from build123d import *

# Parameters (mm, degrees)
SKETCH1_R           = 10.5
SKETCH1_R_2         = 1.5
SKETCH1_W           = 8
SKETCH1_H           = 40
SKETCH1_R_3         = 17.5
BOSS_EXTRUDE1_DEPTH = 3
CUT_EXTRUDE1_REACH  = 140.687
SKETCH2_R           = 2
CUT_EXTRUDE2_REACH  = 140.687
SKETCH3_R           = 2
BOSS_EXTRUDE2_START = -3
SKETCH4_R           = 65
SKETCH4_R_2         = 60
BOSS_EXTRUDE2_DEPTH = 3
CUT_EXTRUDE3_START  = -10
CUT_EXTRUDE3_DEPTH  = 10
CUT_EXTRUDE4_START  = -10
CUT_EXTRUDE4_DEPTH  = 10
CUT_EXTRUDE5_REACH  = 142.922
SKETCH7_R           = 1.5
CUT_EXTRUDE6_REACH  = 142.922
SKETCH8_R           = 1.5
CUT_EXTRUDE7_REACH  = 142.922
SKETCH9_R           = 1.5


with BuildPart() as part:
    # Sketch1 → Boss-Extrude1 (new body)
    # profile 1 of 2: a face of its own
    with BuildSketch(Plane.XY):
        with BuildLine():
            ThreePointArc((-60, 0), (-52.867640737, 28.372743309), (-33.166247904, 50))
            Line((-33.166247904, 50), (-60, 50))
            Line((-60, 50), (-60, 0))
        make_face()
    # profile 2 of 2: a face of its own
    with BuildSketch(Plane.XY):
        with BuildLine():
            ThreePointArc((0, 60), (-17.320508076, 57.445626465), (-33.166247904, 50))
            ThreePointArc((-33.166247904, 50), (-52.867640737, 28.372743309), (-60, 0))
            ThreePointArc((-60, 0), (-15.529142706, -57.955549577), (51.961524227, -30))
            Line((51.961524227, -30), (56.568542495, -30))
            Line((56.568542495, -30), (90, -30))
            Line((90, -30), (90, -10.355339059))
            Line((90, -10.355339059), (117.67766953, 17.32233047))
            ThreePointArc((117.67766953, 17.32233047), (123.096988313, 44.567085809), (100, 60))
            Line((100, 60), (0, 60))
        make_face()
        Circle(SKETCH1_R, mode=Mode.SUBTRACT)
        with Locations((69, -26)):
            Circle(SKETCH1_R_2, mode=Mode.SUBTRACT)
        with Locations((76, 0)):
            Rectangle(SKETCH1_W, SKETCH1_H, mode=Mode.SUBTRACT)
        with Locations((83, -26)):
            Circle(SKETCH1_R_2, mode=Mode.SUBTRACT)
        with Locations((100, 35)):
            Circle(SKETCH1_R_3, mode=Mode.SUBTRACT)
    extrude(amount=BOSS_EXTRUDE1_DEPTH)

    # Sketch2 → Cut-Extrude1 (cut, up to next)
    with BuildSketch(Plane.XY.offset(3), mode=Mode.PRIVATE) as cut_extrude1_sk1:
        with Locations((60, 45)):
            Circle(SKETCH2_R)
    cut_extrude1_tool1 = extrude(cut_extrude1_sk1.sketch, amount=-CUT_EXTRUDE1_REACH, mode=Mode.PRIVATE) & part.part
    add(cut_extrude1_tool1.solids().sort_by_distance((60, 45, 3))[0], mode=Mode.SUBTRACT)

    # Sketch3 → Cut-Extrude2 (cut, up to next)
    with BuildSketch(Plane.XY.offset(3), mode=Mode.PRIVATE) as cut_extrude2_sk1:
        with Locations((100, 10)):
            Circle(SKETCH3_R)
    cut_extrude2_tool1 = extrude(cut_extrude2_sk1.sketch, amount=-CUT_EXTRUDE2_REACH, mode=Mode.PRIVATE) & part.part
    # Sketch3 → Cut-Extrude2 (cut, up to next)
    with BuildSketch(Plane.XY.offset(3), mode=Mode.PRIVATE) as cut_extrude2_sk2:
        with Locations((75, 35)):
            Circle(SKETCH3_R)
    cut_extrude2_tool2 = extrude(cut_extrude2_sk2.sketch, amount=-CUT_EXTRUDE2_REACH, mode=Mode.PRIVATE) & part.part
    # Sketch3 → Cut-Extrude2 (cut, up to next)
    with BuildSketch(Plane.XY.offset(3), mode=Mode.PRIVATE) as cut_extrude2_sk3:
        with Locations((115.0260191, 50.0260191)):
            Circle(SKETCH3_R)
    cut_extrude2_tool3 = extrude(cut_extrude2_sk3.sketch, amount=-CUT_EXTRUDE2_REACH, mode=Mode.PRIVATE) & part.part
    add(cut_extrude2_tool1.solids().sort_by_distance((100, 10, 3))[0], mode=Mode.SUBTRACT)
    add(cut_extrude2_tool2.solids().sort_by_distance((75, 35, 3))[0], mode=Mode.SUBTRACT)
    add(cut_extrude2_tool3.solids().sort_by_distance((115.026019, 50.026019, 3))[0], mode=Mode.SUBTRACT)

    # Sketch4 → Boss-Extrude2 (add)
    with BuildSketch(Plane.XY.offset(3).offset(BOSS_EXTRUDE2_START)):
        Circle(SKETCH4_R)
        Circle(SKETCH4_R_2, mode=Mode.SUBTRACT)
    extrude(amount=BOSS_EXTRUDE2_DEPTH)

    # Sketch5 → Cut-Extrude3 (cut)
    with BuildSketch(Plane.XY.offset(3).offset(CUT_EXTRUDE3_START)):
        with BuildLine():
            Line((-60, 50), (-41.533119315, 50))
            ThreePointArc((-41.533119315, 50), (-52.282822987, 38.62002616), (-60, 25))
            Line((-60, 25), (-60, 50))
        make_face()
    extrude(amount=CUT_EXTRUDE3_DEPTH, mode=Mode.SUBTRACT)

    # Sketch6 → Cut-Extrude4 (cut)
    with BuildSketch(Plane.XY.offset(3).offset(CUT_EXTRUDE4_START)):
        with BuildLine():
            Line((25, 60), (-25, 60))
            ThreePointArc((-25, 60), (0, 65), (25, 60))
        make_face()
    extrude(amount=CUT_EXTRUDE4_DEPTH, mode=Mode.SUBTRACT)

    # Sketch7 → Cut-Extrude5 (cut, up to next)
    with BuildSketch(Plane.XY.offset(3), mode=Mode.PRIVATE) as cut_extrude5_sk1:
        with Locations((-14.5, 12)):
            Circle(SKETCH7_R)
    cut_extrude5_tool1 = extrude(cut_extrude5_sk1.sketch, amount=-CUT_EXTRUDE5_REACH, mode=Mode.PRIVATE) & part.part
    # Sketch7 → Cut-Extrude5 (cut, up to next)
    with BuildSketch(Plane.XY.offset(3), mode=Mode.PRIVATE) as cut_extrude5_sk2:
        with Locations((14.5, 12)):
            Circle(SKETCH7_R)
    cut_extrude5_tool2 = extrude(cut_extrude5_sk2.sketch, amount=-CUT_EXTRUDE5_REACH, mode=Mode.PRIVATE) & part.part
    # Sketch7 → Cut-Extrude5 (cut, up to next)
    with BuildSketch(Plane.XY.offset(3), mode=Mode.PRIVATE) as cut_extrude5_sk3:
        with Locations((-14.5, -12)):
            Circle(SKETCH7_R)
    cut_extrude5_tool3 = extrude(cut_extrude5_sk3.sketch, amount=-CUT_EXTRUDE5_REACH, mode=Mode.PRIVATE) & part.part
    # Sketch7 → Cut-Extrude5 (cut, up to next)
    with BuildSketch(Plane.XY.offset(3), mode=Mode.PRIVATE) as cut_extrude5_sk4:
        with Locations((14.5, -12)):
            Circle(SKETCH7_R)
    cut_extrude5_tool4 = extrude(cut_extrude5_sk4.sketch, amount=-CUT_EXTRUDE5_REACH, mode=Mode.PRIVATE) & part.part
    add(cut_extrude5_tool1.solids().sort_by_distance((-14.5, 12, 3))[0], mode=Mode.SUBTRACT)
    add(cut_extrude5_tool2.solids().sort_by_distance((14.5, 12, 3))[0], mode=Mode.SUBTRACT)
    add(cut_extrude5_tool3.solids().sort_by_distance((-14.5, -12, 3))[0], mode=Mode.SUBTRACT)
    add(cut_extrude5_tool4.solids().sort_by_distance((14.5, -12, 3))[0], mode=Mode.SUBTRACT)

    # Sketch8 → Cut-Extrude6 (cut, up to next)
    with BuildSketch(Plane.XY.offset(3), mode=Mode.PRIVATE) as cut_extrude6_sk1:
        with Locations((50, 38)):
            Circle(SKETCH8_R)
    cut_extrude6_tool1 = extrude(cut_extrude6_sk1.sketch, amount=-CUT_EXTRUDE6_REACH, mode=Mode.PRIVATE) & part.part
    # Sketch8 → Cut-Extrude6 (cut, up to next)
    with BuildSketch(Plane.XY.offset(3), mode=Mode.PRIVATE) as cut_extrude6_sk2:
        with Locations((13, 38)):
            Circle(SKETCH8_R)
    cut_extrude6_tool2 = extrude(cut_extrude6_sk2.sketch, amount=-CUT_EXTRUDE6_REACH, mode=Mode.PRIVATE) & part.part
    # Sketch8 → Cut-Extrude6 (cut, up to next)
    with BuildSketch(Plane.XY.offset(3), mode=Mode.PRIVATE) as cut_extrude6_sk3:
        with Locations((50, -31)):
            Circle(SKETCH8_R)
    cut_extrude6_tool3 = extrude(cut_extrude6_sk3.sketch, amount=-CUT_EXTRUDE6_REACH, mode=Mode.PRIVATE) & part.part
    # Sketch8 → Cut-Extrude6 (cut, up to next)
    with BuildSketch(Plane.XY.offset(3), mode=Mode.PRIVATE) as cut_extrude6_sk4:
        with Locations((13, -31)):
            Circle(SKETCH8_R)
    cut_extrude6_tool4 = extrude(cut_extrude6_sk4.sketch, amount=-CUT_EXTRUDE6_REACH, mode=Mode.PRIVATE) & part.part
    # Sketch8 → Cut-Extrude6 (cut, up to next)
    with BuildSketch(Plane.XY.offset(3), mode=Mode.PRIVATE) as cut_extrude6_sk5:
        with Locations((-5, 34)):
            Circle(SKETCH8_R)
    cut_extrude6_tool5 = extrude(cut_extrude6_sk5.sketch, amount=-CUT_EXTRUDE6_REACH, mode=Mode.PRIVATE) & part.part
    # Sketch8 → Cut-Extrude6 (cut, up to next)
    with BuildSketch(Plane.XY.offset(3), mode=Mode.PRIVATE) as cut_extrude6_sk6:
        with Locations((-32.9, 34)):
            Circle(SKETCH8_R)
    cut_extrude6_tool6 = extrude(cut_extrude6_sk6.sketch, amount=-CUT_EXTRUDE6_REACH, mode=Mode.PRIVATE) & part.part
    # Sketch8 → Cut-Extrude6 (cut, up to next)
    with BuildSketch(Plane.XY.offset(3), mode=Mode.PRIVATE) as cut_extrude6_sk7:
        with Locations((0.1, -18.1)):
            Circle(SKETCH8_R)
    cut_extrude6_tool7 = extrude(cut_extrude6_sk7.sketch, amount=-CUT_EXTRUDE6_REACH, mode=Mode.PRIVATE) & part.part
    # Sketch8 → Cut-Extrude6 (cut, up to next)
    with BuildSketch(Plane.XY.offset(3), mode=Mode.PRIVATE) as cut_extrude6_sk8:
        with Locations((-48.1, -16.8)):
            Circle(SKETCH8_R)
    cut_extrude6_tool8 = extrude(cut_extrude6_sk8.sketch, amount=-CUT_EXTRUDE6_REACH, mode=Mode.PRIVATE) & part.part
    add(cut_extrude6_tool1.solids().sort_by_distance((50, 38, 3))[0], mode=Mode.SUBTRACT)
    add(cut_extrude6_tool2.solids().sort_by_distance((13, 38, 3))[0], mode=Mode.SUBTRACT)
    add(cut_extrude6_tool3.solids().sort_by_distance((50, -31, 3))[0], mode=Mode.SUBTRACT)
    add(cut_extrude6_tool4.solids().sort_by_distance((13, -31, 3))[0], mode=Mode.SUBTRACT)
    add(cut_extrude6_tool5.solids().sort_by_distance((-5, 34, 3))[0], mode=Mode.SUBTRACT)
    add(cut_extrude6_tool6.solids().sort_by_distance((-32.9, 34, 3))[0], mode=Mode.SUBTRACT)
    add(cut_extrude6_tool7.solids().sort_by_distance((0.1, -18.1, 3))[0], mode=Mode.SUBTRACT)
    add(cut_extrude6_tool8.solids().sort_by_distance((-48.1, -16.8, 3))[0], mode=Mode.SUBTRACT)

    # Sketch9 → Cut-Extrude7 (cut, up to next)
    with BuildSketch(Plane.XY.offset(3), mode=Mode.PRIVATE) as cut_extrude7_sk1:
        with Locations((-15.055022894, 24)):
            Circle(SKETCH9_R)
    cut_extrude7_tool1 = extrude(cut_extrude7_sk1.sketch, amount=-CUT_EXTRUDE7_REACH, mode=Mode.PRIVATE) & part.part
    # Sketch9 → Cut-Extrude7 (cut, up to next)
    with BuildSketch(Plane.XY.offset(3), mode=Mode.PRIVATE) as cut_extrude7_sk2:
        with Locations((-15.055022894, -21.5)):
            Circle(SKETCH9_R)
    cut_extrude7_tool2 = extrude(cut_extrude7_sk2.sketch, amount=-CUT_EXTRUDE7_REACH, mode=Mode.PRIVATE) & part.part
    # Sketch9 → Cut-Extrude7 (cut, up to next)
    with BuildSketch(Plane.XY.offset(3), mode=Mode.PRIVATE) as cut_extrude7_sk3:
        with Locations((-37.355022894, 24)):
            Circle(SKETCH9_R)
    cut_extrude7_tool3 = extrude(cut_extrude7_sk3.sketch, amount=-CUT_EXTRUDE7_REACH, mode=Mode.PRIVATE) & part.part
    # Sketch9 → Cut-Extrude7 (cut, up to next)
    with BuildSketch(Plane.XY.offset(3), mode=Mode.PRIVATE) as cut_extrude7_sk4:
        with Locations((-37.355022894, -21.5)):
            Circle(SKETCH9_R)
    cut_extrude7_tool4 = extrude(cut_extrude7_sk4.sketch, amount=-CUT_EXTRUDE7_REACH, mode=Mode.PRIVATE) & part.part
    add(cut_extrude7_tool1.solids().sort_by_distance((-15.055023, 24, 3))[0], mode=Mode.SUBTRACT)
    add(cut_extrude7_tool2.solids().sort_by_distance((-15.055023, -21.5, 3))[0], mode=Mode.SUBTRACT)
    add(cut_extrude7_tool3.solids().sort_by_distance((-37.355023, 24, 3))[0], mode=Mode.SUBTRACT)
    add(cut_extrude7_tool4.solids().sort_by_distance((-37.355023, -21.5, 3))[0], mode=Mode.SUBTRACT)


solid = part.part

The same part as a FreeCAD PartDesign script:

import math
import FreeCAD as App
import Part
import Sketcher
from FreeCAD import Vector
Q = App.Units.Quantity

doc = App.newDocument("Part")
params = doc.addObject("Spreadsheet::Sheet", "Params")
for row, (alias, value) in enumerate([
    ("sketch1_diameter", "35 mm"),
    ("sketch1_diameter2", "21 mm"),
    ("sketch1_diameter3", "3 mm"),
    ("sketch1_radius", "60 mm"),
    ("sketch1_radius2", "25 mm"),
    ("pad1_length", "3 mm"),
    ("sketch2_diameter", "4 mm"),
    ("sketch3_diameter", "4 mm"),
    ("sketch4_diameter", "4 mm"),
    ("sketch5_diameter", "4 mm"),
    ("sketch6_diameter", "130 mm"),
    ("sketch6_diameter2", "120 mm"),
    ("pad2_length", "3 mm"),
    ("sketch7_radius", "65 mm"),
    ("sketch7_height", "25 mm"),
    ("pocket5_length", "10 mm"),
    ("sketch8_radius", "65 mm"),
    ("sketch8_width", "50 mm"),
    ("pocket6_length", "10 mm"),
    ("sketch9_diameter", "3 mm"),
    ("sketch10_diameter", "3 mm"),
    ("sketch11_diameter", "3 mm"),
    ("sketch12_diameter", "3 mm"),
    ("sketch13_diameter", "3 mm"),
    ("sketch14_diameter", "3 mm"),
    ("sketch15_diameter", "3 mm"),
    ("sketch16_diameter", "3 mm"),
    ("sketch17_diameter", "3 mm"),
    ("sketch18_diameter", "3 mm"),
    ("sketch19_diameter", "3 mm"),
    ("sketch20_diameter", "3 mm"),
    ("sketch21_diameter", "3 mm"),
    ("sketch22_diameter", "3 mm"),
    ("sketch23_diameter", "3 mm"),
    ("sketch24_diameter", "3 mm"),
], start=1):
    params.set(f"A{row}", alias)
    params.set(f"B{row}", "=" + value)
    params.setAlias(f"B{row}", alias)

body = doc.addObject("PartDesign::Body", "Body")

# Sketch on XY plane
sketch1 = doc.addObject("Sketcher::SketchObject", "Sketch")
body.addObject(sketch1)
sketch1.AttachmentSupport = (doc.XY_Plane, [""])
sketch1.MapMode = "FlatFace"
sketch1.addGeometry(Part.LineSegment(Vector(-33.166248, 50, 0), Vector(-60, 50, 0)), False)
sketch1.addGeometry(Part.LineSegment(Vector(-60, 50, 0), Vector(-60, 0, 0)), False)
sketch1.addGeometry(Part.ArcOfCircle(Part.Circle(Vector(0, 0, 0), Vector(0, 0, 1), 60), math.radians(180), math.radians(330)), False)
sketch1.addGeometry(Part.LineSegment(Vector(51.961524, -30, 0), Vector(90, -30, 0)), False)
sketch1.addGeometry(Part.LineSegment(Vector(90, -30, 0), Vector(90, -10.355339, 0)), False)
sketch1.addGeometry(Part.LineSegment(Vector(90, -10.355339, 0), Vector(117.67767, 17.32233, 0)), False)
sketch1.addGeometry(Part.ArcOfCircle(Part.Circle(Vector(100, 35, 0), Vector(0, 0, 1), 25), math.radians(-45), math.radians(90)), False)
sketch1.addGeometry(Part.LineSegment(Vector(100, 60, 0), Vector(0, 60, 0)), False)
sketch1.addGeometry(Part.ArcOfCircle(Part.Circle(Vector(0, 0, 0), Vector(0, 0, 1), 60), math.radians(90), math.radians(123.55731)), False)
sketch1.addGeometry(Part.Circle(Vector(100, 35, 0), Vector(0, 0, 1), 17.5), False)
sketch1.addGeometry(Part.Circle(Vector(0, 0, 0), Vector(0, 0, 1), 10.5), False)
sketch1.addGeometry(Part.Circle(Vector(69, -26, 0), Vector(0, 0, 1), 1.5), False)
sketch1.addGeometry(Part.Circle(Vector(83, -26, 0), Vector(0, 0, 1), 1.5), False)
sketch1.addGeometry(Part.LineSegment(Vector(80, -20, 0), Vector(72, -20, 0)), False)
sketch1.addGeometry(Part.LineSegment(Vector(72, -20, 0), Vector(72, 20, 0)), False)
sketch1.addGeometry(Part.LineSegment(Vector(72, 20, 0), Vector(80, 20, 0)), False)
sketch1.addGeometry(Part.LineSegment(Vector(80, 20, 0), Vector(80, -20, 0)), False)
sketch1.addConstraint(Sketcher.Constraint("Coincident", 0, 2, 1, 1))
sketch1.addConstraint(Sketcher.Constraint("Tangent", 1, 2, 2, 1))
sketch1.addConstraint(Sketcher.Constraint("Coincident", 2, 2, 3, 1))
sketch1.addConstraint(Sketcher.Constraint("Coincident", 3, 2, 4, 1))
sketch1.addConstraint(Sketcher.Constraint("Coincident", 4, 2, 5, 1))
sketch1.addConstraint(Sketcher.Constraint("Tangent", 5, 2, 6, 1))
sketch1.addConstraint(Sketcher.Constraint("Tangent", 6, 2, 7, 1))
sketch1.addConstraint(Sketcher.Constraint("Tangent", 7, 2, 8, 1))
sketch1.addConstraint(Sketcher.Constraint("Coincident", 8, 2, 0, 1))
sketch1.addConstraint(Sketcher.Constraint("Coincident", 13, 2, 14, 1))
sketch1.addConstraint(Sketcher.Constraint("Coincident", 14, 2, 15, 1))
sketch1.addConstraint(Sketcher.Constraint("Coincident", 15, 2, 16, 1))
sketch1.addConstraint(Sketcher.Constraint("Coincident", 16, 2, 13, 1))
sketch1.addConstraint(Sketcher.Constraint("Horizontal", 0))
sketch1.addConstraint(Sketcher.Constraint("Vertical", 1))
sketch1.addConstraint(Sketcher.Constraint("Horizontal", 3))
sketch1.addConstraint(Sketcher.Constraint("Vertical", 4))
sketch1.addConstraint(Sketcher.Constraint("Horizontal", 7))
sketch1.addConstraint(Sketcher.Constraint("Horizontal", 13))
sketch1.addConstraint(Sketcher.Constraint("Vertical", 14))
sketch1.addConstraint(Sketcher.Constraint("Horizontal", 15))
sketch1.addConstraint(Sketcher.Constraint("Vertical", 16))
sketch1.addConstraint(Sketcher.Constraint("Coincident", 2, 3, -1, 1))
sketch1.addConstraint(Sketcher.Constraint("Coincident", 8, 3, -1, 1))
sketch1.addConstraint(Sketcher.Constraint("Coincident", 10, 3, -1, 1))
sketch1.addConstraint(Sketcher.Constraint("Coincident", 9, 3, 6, 3))
sketch1.addConstraint(Sketcher.Constraint("Equal", 2, 8))
sketch1.addConstraint(Sketcher.Constraint("Equal", 11, 12))
sketch1.addConstraint(Sketcher.Constraint("Horizontal", 11, 3, 12, 3))
sketch1.addConstraint(Sketcher.Constraint("Diameter", 9, Q("35 mm")))
sketch1.addConstraint(Sketcher.Constraint("Diameter", 10, Q("21 mm")))
sketch1.addConstraint(Sketcher.Constraint("Diameter", 11, Q("3 mm")))
sketch1.addConstraint(Sketcher.Constraint("Radius", 2, Q("60 mm")))
sketch1.addConstraint(Sketcher.Constraint("Radius", 6, Q("25 mm")))
sketch1.addConstraint(Sketcher.Constraint("DistanceX", 7, 2, 7, 1, Q("100 mm")))
sketch1.addConstraint(Sketcher.Constraint("DistanceX", 13, 2, 13, 1, Q("8 mm")))
sketch1.addConstraint(Sketcher.Constraint("DistanceY", 1, 2, 1, 1, Q("50 mm")))
sketch1.addConstraint(Sketcher.Constraint("DistanceY", 14, 1, 14, 2, Q("40 mm")))
sketch1.addConstraint(Sketcher.Constraint("Angle", 5, Q("45 deg")))
sketch1.addConstraint(Sketcher.Constraint("DistanceX", -1, 1, 11, 3, Q("69 mm")))
sketch1.addConstraint(Sketcher.Constraint("DistanceY", 11, 3, -1, 1, Q("26 mm")))
sketch1.addConstraint(Sketcher.Constraint("DistanceX", -1, 1, 12, 3, Q("83 mm")))
sketch1.addConstraint(Sketcher.Constraint("DistanceY", 2, 2, -1, 1, Q("30 mm")))
sketch1.addConstraint(Sketcher.Constraint("DistanceX", -1, 1, 3, 2, Q("90 mm")))
sketch1.addConstraint(Sketcher.Constraint("DistanceX", -1, 1, 13, 2, Q("72 mm")))
sketch1.addConstraint(Sketcher.Constraint("DistanceY", 13, 2, -1, 1, Q("20 mm")))
sketch1.setExpression("Constraints[29]", "Params.sketch1_diameter")
sketch1.setExpression("Constraints[30]", "Params.sketch1_diameter2")
sketch1.setExpression("Constraints[31]", "Params.sketch1_diameter3")
sketch1.setExpression("Constraints[32]", "Params.sketch1_radius")
sketch1.setExpression("Constraints[33]", "Params.sketch1_radius2")
pad1 = doc.addObject("PartDesign::Pad", "Pad")
body.addObject(pad1)
pad1.Profile = sketch1
pad1.setExpression("Length", "Params.pad1_length")

# Sketch on XY plane
sketch2 = doc.addObject("Sketcher::SketchObject", "Sketch001")
body.addObject(sketch2)
sketch2.AttachmentSupport = (doc.XY_Plane, [""])
sketch2.MapMode = "FlatFace"
sketch2.AttachmentOffset = App.Placement(Vector(0, 0, 3), App.Rotation())
sketch2.addGeometry(Part.Circle(Vector(60, 45, 0), Vector(0, 0, 1), 2), False)
sketch2.addConstraint(Sketcher.Constraint("Diameter", 0, Q("4 mm")))
sketch2.addConstraint(Sketcher.Constraint("DistanceX", -1, 1, 0, 3, Q("60 mm")))
sketch2.addConstraint(Sketcher.Constraint("DistanceY", -1, 1, 0, 3, Q("45 mm")))
sketch2.setExpression("Constraints[0]", "Params.sketch2_diameter")
pocket1 = doc.addObject("PartDesign::Pocket", "Pocket")
body.addObject(pocket1)
pocket1.Profile = sketch2
pocket1.Type = "UpToFirst"

# Sketch on XY plane
sketch3 = doc.addObject("Sketcher::SketchObject", "Sketch002")
body.addObject(sketch3)
sketch3.AttachmentSupport = (doc.XY_Plane, [""])
sketch3.MapMode = "FlatFace"
sketch3.AttachmentOffset = App.Placement(Vector(0, 0, 3), App.Rotation())
sketch3.addGeometry(Part.Circle(Vector(100, 10, 0), Vector(0, 0, 1), 2), False)
sketch3.addConstraint(Sketcher.Constraint("Diameter", 0, Q("4 mm")))
sketch3.addConstraint(Sketcher.Constraint("DistanceX", -1, 1, 0, 3, Q("100 mm")))
sketch3.addConstraint(Sketcher.Constraint("DistanceY", -1, 1, 0, 3, Q("10 mm")))
sketch3.setExpression("Constraints[0]", "Params.sketch3_diameter")
pocket2 = doc.addObject("PartDesign::Pocket", "Pocket001")
body.addObject(pocket2)
pocket2.Profile = sketch3
pocket2.Type = "UpToFirst"

# Sketch on XY plane
sketch4 = doc.addObject("Sketcher::SketchObject", "Sketch003")
body.addObject(sketch4)
sketch4.AttachmentSupport = (doc.XY_Plane, [""])
sketch4.MapMode = "FlatFace"
sketch4.AttachmentOffset = App.Placement(Vector(0, 0, 3), App.Rotation())
sketch4.addGeometry(Part.Circle(Vector(75, 35, 0), Vector(0, 0, 1), 2), False)
sketch4.addConstraint(Sketcher.Constraint("Diameter", 0, Q("4 mm")))
sketch4.addConstraint(Sketcher.Constraint("DistanceX", -1, 1, 0, 3, Q("75 mm")))
sketch4.addConstraint(Sketcher.Constraint("DistanceY", -1, 1, 0, 3, Q("35 mm")))
sketch4.setExpression("Constraints[0]", "Params.sketch4_diameter")
pocket3 = doc.addObject("PartDesign::Pocket", "Pocket002")
body.addObject(pocket3)
pocket3.Profile = sketch4
pocket3.Type = "UpToFirst"

# Sketch on XY plane
sketch5 = doc.addObject("Sketcher::SketchObject", "Sketch004")
body.addObject(sketch5)
sketch5.AttachmentSupport = (doc.XY_Plane, [""])
sketch5.MapMode = "FlatFace"
sketch5.AttachmentOffset = App.Placement(Vector(0, 0, 3), App.Rotation())
sketch5.addGeometry(Part.Circle(Vector(115.026019, 50.026019, 0), Vector(0, 0, 1), 2), False)
sketch5.addConstraint(Sketcher.Constraint("Diameter", 0, Q("4 mm")))
sketch5.addConstraint(Sketcher.Constraint("DistanceX", -1, 1, 0, 3, Q("115.026019 mm")))
sketch5.addConstraint(Sketcher.Constraint("DistanceY", -1, 1, 0, 3, Q("50.026019 mm")))
sketch5.setExpression("Constraints[0]", "Params.sketch5_diameter")
pocket4 = doc.addObject("PartDesign::Pocket", "Pocket003")
body.addObject(pocket4)
pocket4.Profile = sketch5
pocket4.Type = "UpToFirst"

# Sketch on XY plane
sketch6 = doc.addObject("Sketcher::SketchObject", "Sketch005")
body.addObject(sketch6)
sketch6.AttachmentSupport = (doc.XY_Plane, [""])
sketch6.MapMode = "FlatFace"
sketch6.addGeometry(Part.Circle(Vector(0, 0, 0), Vector(0, 0, 1), 65), False)
sketch6.addGeometry(Part.Circle(Vector(0, 0, 0), Vector(0, 0, 1), 60), False)
sketch6.addConstraint(Sketcher.Constraint("Coincident", 0, 3, -1, 1))
sketch6.addConstraint(Sketcher.Constraint("Coincident", 1, 3, -1, 1))
sketch6.addConstraint(Sketcher.Constraint("Diameter", 0, Q("130 mm")))
sketch6.addConstraint(Sketcher.Constraint("Diameter", 1, Q("120 mm")))
sketch6.setExpression("Constraints[2]", "Params.sketch6_diameter")
sketch6.setExpression("Constraints[3]", "Params.sketch6_diameter2")
pad2 = doc.addObject("PartDesign::Pad", "Pad001")
body.addObject(pad2)
pad2.Profile = sketch6
pad2.setExpression("Length", "Params.pad2_length")

# Sketch on XY plane
sketch7 = doc.addObject("Sketcher::SketchObject", "Sketch006")
body.addObject(sketch7)
sketch7.AttachmentSupport = (doc.XY_Plane, [""])
sketch7.MapMode = "FlatFace"
sketch7.AttachmentOffset = App.Placement(Vector(0, 0, -7), App.Rotation())
sketch7.addGeometry(Part.LineSegment(Vector(-41.533119, 50, 0), Vector(-60, 50, 0)), False)
sketch7.addGeometry(Part.LineSegment(Vector(-60, 50, 0), Vector(-60, 25, 0)), False)
sketch7.addGeometry(Part.ArcOfCircle(Part.Circle(Vector(0, 0, 0), Vector(0, 0, 1), 65), math.radians(129.715137), math.radians(157.380135)), False)
sketch7.addConstraint(Sketcher.Constraint("Coincident", 0, 2, 1, 1))
sketch7.addConstraint(Sketcher.Constraint("Coincident", 1, 2, 2, 2))
sketch7.addConstraint(Sketcher.Constraint("Coincident", 2, 1, 0, 1))
sketch7.addConstraint(Sketcher.Constraint("Horizontal", 0))
sketch7.addConstraint(Sketcher.Constraint("Vertical", 1))
sketch7.addConstraint(Sketcher.Constraint("Coincident", 2, 3, -1, 1))
sketch7.addConstraint(Sketcher.Constraint("Radius", 2, Q("65 mm")))
sketch7.addConstraint(Sketcher.Constraint("DistanceY", 1, 2, 1, 1, Q("25 mm")))
sketch7.addConstraint(Sketcher.Constraint("DistanceX", 0, 2, -1, 1, Q("60 mm")))
sketch7.setExpression("Constraints[6]", "Params.sketch7_radius")
sketch7.setExpression("Constraints[7]", "Params.sketch7_height")
pocket5 = doc.addObject("PartDesign::Pocket", "Pocket004")
body.addObject(pocket5)
pocket5.Profile = sketch7
pocket5.setExpression("Length", "Params.pocket5_length")
pocket5.Reversed = True

# Sketch on XY plane
sketch8 = doc.addObject("Sketcher::SketchObject", "Sketch007")
body.addObject(sketch8)
sketch8.AttachmentSupport = (doc.XY_Plane, [""])
sketch8.MapMode = "FlatFace"
sketch8.AttachmentOffset = App.Placement(Vector(0, 0, -7), App.Rotation())
sketch8.addGeometry(Part.LineSegment(Vector(-25, 60, 0), Vector(25, 60, 0)), False)
sketch8.addGeometry(Part.ArcOfCircle(Part.Circle(Vector(0, 0, 0), Vector(0, 0, 1), 65), math.radians(67.380135), math.radians(112.619865)), False)
sketch8.addConstraint(Sketcher.Constraint("Coincident", 0, 1, 1, 2))
sketch8.addConstraint(Sketcher.Constraint("Coincident", 1, 1, 0, 2))
sketch8.addConstraint(Sketcher.Constraint("Horizontal", 0))
sketch8.addConstraint(Sketcher.Constraint("Coincident", 1, 3, -1, 1))
sketch8.addConstraint(Sketcher.Constraint("Radius", 1, Q("65 mm")))
sketch8.addConstraint(Sketcher.Constraint("DistanceX", 0, 1, 0, 2, Q("50 mm")))
sketch8.setExpression("Constraints[4]", "Params.sketch8_radius")
sketch8.setExpression("Constraints[5]", "Params.sketch8_width")
pocket6 = doc.addObject("PartDesign::Pocket", "Pocket005")
body.addObject(pocket6)
pocket6.Profile = sketch8
pocket6.setExpression("Length", "Params.pocket6_length")
pocket6.Reversed = True

# Sketch on XY plane
sketch9 = doc.addObject("Sketcher::SketchObject", "Sketch008")
body.addObject(sketch9)
sketch9.AttachmentSupport = (doc.XY_Plane, [""])
sketch9.MapMode = "FlatFace"
sketch9.AttachmentOffset = App.Placement(Vector(0, 0, 3), App.Rotation())
sketch9.addGeometry(Part.Circle(Vector(-14.5, 12, 0), Vector(0, 0, 1), 1.5), False)
sketch9.addConstraint(Sketcher.Constraint("Diameter", 0, Q("3 mm")))
sketch9.addConstraint(Sketcher.Constraint("DistanceY", -1, 1, 0, 3, Q("12 mm")))
sketch9.addConstraint(Sketcher.Constraint("DistanceX", 0, 3, -1, 1, Q("14.5 mm")))
sketch9.setExpression("Constraints[0]", "Params.sketch9_diameter")
pocket7 = doc.addObject("PartDesign::Pocket", "Pocket006")
body.addObject(pocket7)
pocket7.Profile = sketch9
pocket7.Type = "UpToFirst"

# Sketch on XY plane
sketch10 = doc.addObject("Sketcher::SketchObject", "Sketch009")
body.addObject(sketch10)
sketch10.AttachmentSupport = (doc.XY_Plane, [""])
sketch10.MapMode = "FlatFace"
sketch10.AttachmentOffset = App.Placement(Vector(0, 0, 3), App.Rotation())
sketch10.addGeometry(Part.Circle(Vector(14.5, 12, 0), Vector(0, 0, 1), 1.5), False)
sketch10.addConstraint(Sketcher.Constraint("Diameter", 0, Q("3 mm")))
sketch10.addConstraint(Sketcher.Constraint("DistanceY", -1, 1, 0, 3, Q("12 mm")))
sketch10.addConstraint(Sketcher.Constraint("DistanceX", -1, 1, 0, 3, Q("14.5 mm")))
sketch10.setExpression("Constraints[0]", "Params.sketch10_diameter")
pocket8 = doc.addObject("PartDesign::Pocket", "Pocket007")
body.addObject(pocket8)
pocket8.Profile = sketch10
pocket8.Type = "UpToFirst"

# Sketch on XY plane
sketch11 = doc.addObject("Sketcher::SketchObject", "Sketch010")
body.addObject(sketch11)
sketch11.AttachmentSupport = (doc.XY_Plane, [""])
sketch11.MapMode = "FlatFace"
sketch11.AttachmentOffset = App.Placement(Vector(0, 0, 3), App.Rotation())
sketch11.addGeometry(Part.Circle(Vector(-14.5, -12, 0), Vector(0, 0, 1), 1.5), False)
sketch11.addConstraint(Sketcher.Constraint("Diameter", 0, Q("3 mm")))
sketch11.addConstraint(Sketcher.Constraint("DistanceY", 0, 3, -1, 1, Q("12 mm")))
sketch11.addConstraint(Sketcher.Constraint("DistanceX", 0, 3, -1, 1, Q("14.5 mm")))
sketch11.setExpression("Constraints[0]", "Params.sketch11_diameter")
pocket9 = doc.addObject("PartDesign::Pocket", "Pocket008")
body.addObject(pocket9)
pocket9.Profile = sketch11
pocket9.Type = "UpToFirst"

# Sketch on XY plane
sketch12 = doc.addObject("Sketcher::SketchObject", "Sketch011")
body.addObject(sketch12)
sketch12.AttachmentSupport = (doc.XY_Plane, [""])
sketch12.MapMode = "FlatFace"
sketch12.AttachmentOffset = App.Placement(Vector(0, 0, 3), App.Rotation())
sketch12.addGeometry(Part.Circle(Vector(14.5, -12, 0), Vector(0, 0, 1), 1.5), False)
sketch12.addConstraint(Sketcher.Constraint("Diameter", 0, Q("3 mm")))
sketch12.addConstraint(Sketcher.Constraint("DistanceY", 0, 3, -1, 1, Q("12 mm")))
sketch12.addConstraint(Sketcher.Constraint("DistanceX", -1, 1, 0, 3, Q("14.5 mm")))
sketch12.setExpression("Constraints[0]", "Params.sketch12_diameter")
pocket10 = doc.addObject("PartDesign::Pocket", "Pocket009")
body.addObject(pocket10)
pocket10.Profile = sketch12
pocket10.Type = "UpToFirst"

# Sketch on XY plane
sketch13 = doc.addObject("Sketcher::SketchObject", "Sketch012")
body.addObject(sketch13)
sketch13.AttachmentSupport = (doc.XY_Plane, [""])
sketch13.MapMode = "FlatFace"
sketch13.AttachmentOffset = App.Placement(Vector(0, 0, 3), App.Rotation())
sketch13.addGeometry(Part.Circle(Vector(50, 38, 0), Vector(0, 0, 1), 1.5), False)
sketch13.addConstraint(Sketcher.Constraint("Diameter", 0, Q("3 mm")))
sketch13.addConstraint(Sketcher.Constraint("DistanceX", -1, 1, 0, 3, Q("50 mm")))
sketch13.addConstraint(Sketcher.Constraint("DistanceY", -1, 1, 0, 3, Q("38 mm")))
sketch13.setExpression("Constraints[0]", "Params.sketch13_diameter")
pocket11 = doc.addObject("PartDesign::Pocket", "Pocket010")
body.addObject(pocket11)
pocket11.Profile = sketch13
pocket11.Type = "UpToFirst"

# Sketch on XY plane
sketch14 = doc.addObject("Sketcher::SketchObject", "Sketch013")
body.addObject(sketch14)
sketch14.AttachmentSupport = (doc.XY_Plane, [""])
sketch14.MapMode = "FlatFace"
sketch14.AttachmentOffset = App.Placement(Vector(0, 0, 3), App.Rotation())
sketch14.addGeometry(Part.Circle(Vector(13, 38, 0), Vector(0, 0, 1), 1.5), False)
sketch14.addConstraint(Sketcher.Constraint("Diameter", 0, Q("3 mm")))
sketch14.addConstraint(Sketcher.Constraint("DistanceX", -1, 1, 0, 3, Q("13 mm")))
sketch14.addConstraint(Sketcher.Constraint("DistanceY", -1, 1, 0, 3, Q("38 mm")))
sketch14.setExpression("Constraints[0]", "Params.sketch14_diameter")
pocket12 = doc.addObject("PartDesign::Pocket", "Pocket011")
body.addObject(pocket12)
pocket12.Profile = sketch14
pocket12.Type = "UpToFirst"

# Sketch on XY plane
sketch15 = doc.addObject("Sketcher::SketchObject", "Sketch014")
body.addObject(sketch15)
sketch15.AttachmentSupport = (doc.XY_Plane, [""])
sketch15.MapMode = "FlatFace"
sketch15.AttachmentOffset = App.Placement(Vector(0, 0, 3), App.Rotation())
sketch15.addGeometry(Part.Circle(Vector(50, -31, 0), Vector(0, 0, 1), 1.5), False)
sketch15.addConstraint(Sketcher.Constraint("Diameter", 0, Q("3 mm")))
sketch15.addConstraint(Sketcher.Constraint("DistanceX", -1, 1, 0, 3, Q("50 mm")))
sketch15.addConstraint(Sketcher.Constraint("DistanceY", 0, 3, -1, 1, Q("31 mm")))
sketch15.setExpression("Constraints[0]", "Params.sketch15_diameter")
pocket13 = doc.addObject("PartDesign::Pocket", "Pocket012")
body.addObject(pocket13)
pocket13.Profile = sketch15
pocket13.Type = "UpToFirst"

# Sketch on XY plane
sketch16 = doc.addObject("Sketcher::SketchObject", "Sketch015")
body.addObject(sketch16)
sketch16.AttachmentSupport = (doc.XY_Plane, [""])
sketch16.MapMode = "FlatFace"
sketch16.AttachmentOffset = App.Placement(Vector(0, 0, 3), App.Rotation())
sketch16.addGeometry(Part.Circle(Vector(13, -31, 0), Vector(0, 0, 1), 1.5), False)
sketch16.addConstraint(Sketcher.Constraint("Diameter", 0, Q("3 mm")))
sketch16.addConstraint(Sketcher.Constraint("DistanceX", -1, 1, 0, 3, Q("13 mm")))
sketch16.addConstraint(Sketcher.Constraint("DistanceY", 0, 3, -1, 1, Q("31 mm")))
sketch16.setExpression("Constraints[0]", "Params.sketch16_diameter")
pocket14 = doc.addObject("PartDesign::Pocket", "Pocket013")
body.addObject(pocket14)
pocket14.Profile = sketch16
pocket14.Type = "UpToFirst"

# Sketch on XY plane
sketch17 = doc.addObject("Sketcher::SketchObject", "Sketch016")
body.addObject(sketch17)
sketch17.AttachmentSupport = (doc.XY_Plane, [""])
sketch17.MapMode = "FlatFace"
sketch17.AttachmentOffset = App.Placement(Vector(0, 0, 3), App.Rotation())
sketch17.addGeometry(Part.Circle(Vector(-5, 34, 0), Vector(0, 0, 1), 1.5), False)
sketch17.addConstraint(Sketcher.Constraint("Diameter", 0, Q("3 mm")))
sketch17.addConstraint(Sketcher.Constraint("DistanceX", 0, 3, -1, 1, Q("5 mm")))
sketch17.addConstraint(Sketcher.Constraint("DistanceY", -1, 1, 0, 3, Q("34 mm")))
sketch17.setExpression("Constraints[0]", "Params.sketch17_diameter")
pocket15 = doc.addObject("PartDesign::Pocket", "Pocket014")
body.addObject(pocket15)
pocket15.Profile = sketch17
pocket15.Type = "UpToFirst"

# Sketch on XY plane
sketch18 = doc.addObject("Sketcher::SketchObject", "Sketch017")
body.addObject(sketch18)
sketch18.AttachmentSupport = (doc.XY_Plane, [""])
sketch18.MapMode = "FlatFace"
sketch18.AttachmentOffset = App.Placement(Vector(0, 0, 3), App.Rotation())
sketch18.addGeometry(Part.Circle(Vector(-32.9, 34, 0), Vector(0, 0, 1), 1.5), False)
sketch18.addConstraint(Sketcher.Constraint("Diameter", 0, Q("3 mm")))
sketch18.addConstraint(Sketcher.Constraint("DistanceY", -1, 1, 0, 3, Q("34 mm")))
sketch18.addConstraint(Sketcher.Constraint("DistanceX", 0, 3, -1, 1, Q("32.9 mm")))
sketch18.setExpression("Constraints[0]", "Params.sketch18_diameter")
pocket16 = doc.addObject("PartDesign::Pocket", "Pocket015")
body.addObject(pocket16)
pocket16.Profile = sketch18
pocket16.Type = "UpToFirst"

# Sketch on XY plane
sketch19 = doc.addObject("Sketcher::SketchObject", "Sketch018")
body.addObject(sketch19)
sketch19.AttachmentSupport = (doc.XY_Plane, [""])
sketch19.MapMode = "FlatFace"
sketch19.AttachmentOffset = App.Placement(Vector(0, 0, 3), App.Rotation())
sketch19.addGeometry(Part.Circle(Vector(0.1, -18.1, 0), Vector(0, 0, 1), 1.5), False)
sketch19.addConstraint(Sketcher.Constraint("Diameter", 0, Q("3 mm")))
sketch19.addConstraint(Sketcher.Constraint("DistanceX", -1, 1, 0, 3, Q("0.1 mm")))
sketch19.addConstraint(Sketcher.Constraint("DistanceY", 0, 3, -1, 1, Q("18.1 mm")))
sketch19.setExpression("Constraints[0]", "Params.sketch19_diameter")
pocket17 = doc.addObject("PartDesign::Pocket", "Pocket016")
body.addObject(pocket17)
pocket17.Profile = sketch19
pocket17.Type = "UpToFirst"

# Sketch on XY plane
sketch20 = doc.addObject("Sketcher::SketchObject", "Sketch019")
body.addObject(sketch20)
sketch20.AttachmentSupport = (doc.XY_Plane, [""])
sketch20.MapMode = "FlatFace"
sketch20.AttachmentOffset = App.Placement(Vector(0, 0, 3), App.Rotation())
sketch20.addGeometry(Part.Circle(Vector(-48.1, -16.8, 0), Vector(0, 0, 1), 1.5), False)
sketch20.addConstraint(Sketcher.Constraint("Diameter", 0, Q("3 mm")))
sketch20.addConstraint(Sketcher.Constraint("DistanceX", 0, 3, -1, 1, Q("48.1 mm")))
sketch20.addConstraint(Sketcher.Constraint("DistanceY", 0, 3, -1, 1, Q("16.8 mm")))
sketch20.setExpression("Constraints[0]", "Params.sketch20_diameter")
pocket18 = doc.addObject("PartDesign::Pocket", "Pocket017")
body.addObject(pocket18)
pocket18.Profile = sketch20
pocket18.Type = "UpToFirst"

# Sketch on XY plane
sketch21 = doc.addObject("Sketcher::SketchObject", "Sketch020")
body.addObject(sketch21)
sketch21.AttachmentSupport = (doc.XY_Plane, [""])
sketch21.MapMode = "FlatFace"
sketch21.AttachmentOffset = App.Placement(Vector(0, 0, 3), App.Rotation())
sketch21.addGeometry(Part.Circle(Vector(-15.055023, 24, 0), Vector(0, 0, 1), 1.5), False)
sketch21.addConstraint(Sketcher.Constraint("Diameter", 0, Q("3 mm")))
sketch21.addConstraint(Sketcher.Constraint("DistanceY", -1, 1, 0, 3, Q("24 mm")))
sketch21.addConstraint(Sketcher.Constraint("DistanceX", 0, 3, -1, 1, Q("15.055023 mm")))
sketch21.setExpression("Constraints[0]", "Params.sketch21_diameter")
pocket19 = doc.addObject("PartDesign::Pocket", "Pocket018")
body.addObject(pocket19)
pocket19.Profile = sketch21
pocket19.Type = "UpToFirst"

# Sketch on XY plane
sketch22 = doc.addObject("Sketcher::SketchObject", "Sketch021")
body.addObject(sketch22)
sketch22.AttachmentSupport = (doc.XY_Plane, [""])
sketch22.MapMode = "FlatFace"
sketch22.AttachmentOffset = App.Placement(Vector(0, 0, 3), App.Rotation())
sketch22.addGeometry(Part.Circle(Vector(-15.055023, -21.5, 0), Vector(0, 0, 1), 1.5), False)
sketch22.addConstraint(Sketcher.Constraint("Diameter", 0, Q("3 mm")))
sketch22.addConstraint(Sketcher.Constraint("DistanceY", 0, 3, -1, 1, Q("21.5 mm")))
sketch22.addConstraint(Sketcher.Constraint("DistanceX", 0, 3, -1, 1, Q("15.055023 mm")))
sketch22.setExpression("Constraints[0]", "Params.sketch22_diameter")
pocket20 = doc.addObject("PartDesign::Pocket", "Pocket019")
body.addObject(pocket20)
pocket20.Profile = sketch22
pocket20.Type = "UpToFirst"

# Sketch on XY plane
sketch23 = doc.addObject("Sketcher::SketchObject", "Sketch022")
body.addObject(sketch23)
sketch23.AttachmentSupport = (doc.XY_Plane, [""])
sketch23.MapMode = "FlatFace"
sketch23.AttachmentOffset = App.Placement(Vector(0, 0, 3), App.Rotation())
sketch23.addGeometry(Part.Circle(Vector(-37.355023, 24, 0), Vector(0, 0, 1), 1.5), False)
sketch23.addConstraint(Sketcher.Constraint("Diameter", 0, Q("3 mm")))
sketch23.addConstraint(Sketcher.Constraint("DistanceY", -1, 1, 0, 3, Q("24 mm")))
sketch23.addConstraint(Sketcher.Constraint("DistanceX", 0, 3, -1, 1, Q("37.355023 mm")))
sketch23.setExpression("Constraints[0]", "Params.sketch23_diameter")
pocket21 = doc.addObject("PartDesign::Pocket", "Pocket020")
body.addObject(pocket21)
pocket21.Profile = sketch23
pocket21.Type = "UpToFirst"

# Sketch on XY plane
sketch24 = doc.addObject("Sketcher::SketchObject", "Sketch023")
body.addObject(sketch24)
sketch24.AttachmentSupport = (doc.XY_Plane, [""])
sketch24.MapMode = "FlatFace"
sketch24.AttachmentOffset = App.Placement(Vector(0, 0, 3), App.Rotation())
sketch24.addGeometry(Part.Circle(Vector(-37.355023, -21.5, 0), Vector(0, 0, 1), 1.5), False)
sketch24.addConstraint(Sketcher.Constraint("Diameter", 0, Q("3 mm")))
sketch24.addConstraint(Sketcher.Constraint("DistanceY", 0, 3, -1, 1, Q("21.5 mm")))
sketch24.addConstraint(Sketcher.Constraint("DistanceX", 0, 3, -1, 1, Q("37.355023 mm")))
sketch24.setExpression("Constraints[0]", "Params.sketch24_diameter")
pocket22 = doc.addObject("PartDesign::Pocket", "Pocket021")
body.addObject(pocket22)
pocket22.Profile = sketch24
pocket22.Type = "UpToFirst"

doc.recompute()
